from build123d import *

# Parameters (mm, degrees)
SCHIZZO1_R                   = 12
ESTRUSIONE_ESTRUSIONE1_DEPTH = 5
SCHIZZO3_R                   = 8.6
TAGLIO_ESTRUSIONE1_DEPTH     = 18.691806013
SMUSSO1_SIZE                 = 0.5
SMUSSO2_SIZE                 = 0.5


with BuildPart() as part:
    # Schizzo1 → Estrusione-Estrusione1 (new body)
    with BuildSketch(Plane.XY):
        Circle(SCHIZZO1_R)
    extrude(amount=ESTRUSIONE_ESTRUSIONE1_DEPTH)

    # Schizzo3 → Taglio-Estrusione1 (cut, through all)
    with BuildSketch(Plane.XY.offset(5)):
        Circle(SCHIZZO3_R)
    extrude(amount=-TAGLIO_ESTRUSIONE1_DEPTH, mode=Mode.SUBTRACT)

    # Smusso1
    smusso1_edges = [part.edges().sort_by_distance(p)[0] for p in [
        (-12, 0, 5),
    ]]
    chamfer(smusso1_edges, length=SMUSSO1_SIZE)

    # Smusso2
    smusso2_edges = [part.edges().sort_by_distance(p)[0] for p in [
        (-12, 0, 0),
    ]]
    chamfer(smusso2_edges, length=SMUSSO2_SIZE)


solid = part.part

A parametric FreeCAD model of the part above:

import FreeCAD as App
import Part
import Sketcher
from FreeCAD import Vector


def edges_at(feature, points):
    """Names of the edges that pass closest to the given points."""
    edges = feature.Shape.Edges
    near = lambda p: min(range(len(edges)), key=lambda i: edges[i].distToShape(Part.Vertex(*p))[0])
    return sorted({f"Edge{near(p) + 1}" for p in points})

doc = App.newDocument("Part")
body = doc.addObject("PartDesign::Body", "Body")

# Sketch on XY plane
sketch1 = body.newObject("Sketcher::SketchObject", "Sketch")
sketch1.AttachmentSupport = (doc.getObject("XY_Plane"), [""])
sketch1.MapMode = "FlatFace"
sketch1.addGeometry(Part.Circle(Vector(0, 0, 0), Vector(0, 0, 1), 12), False)
sketch1.addConstraint(Sketcher.Constraint("Coincident", 0, 3, -1, 1))
sketch1.addConstraint(Sketcher.Constraint("Diameter", 0, 24.0))
pad1 = body.newObject("PartDesign::Pad", "Pad")
pad1.Profile = sketch1
pad1.Length = 5

# Sketch on XY plane
sketch2 = body.newObject("Sketcher::SketchObject", "Sketch001")
sketch2.AttachmentSupport = (doc.getObject("XY_Plane"), [""])
sketch2.MapMode = "FlatFace"
sketch2.AttachmentOffset = App.Placement(Vector(0, 0, 5), App.Rotation())
sketch2.addGeometry(Part.Circle(Vector(0, 0, 0), Vector(0, 0, 1), 9), False)
sketch2.addConstraint(Sketcher.Constraint("Coincident", 0, 3, -1, 1))
sketch2.addConstraint(Sketcher.Constraint("Diameter", 0, 17.2))
pocket1 = body.newObject("PartDesign::Pocket", "Pocket")
pocket1.Profile = sketch2
pocket1.Type = "ThroughAll"
doc.recompute()

chamfer = body.newObject("PartDesign::Chamfer", "Chamfer")
chamfer.Base = (pocket1, edges_at(pocket1, [(-12, 0, 5)]))
chamfer.Size = 0.5
doc.recompute()

chamfer2 = body.newObject("PartDesign::Chamfer", "Chamfer001")
chamfer2.Base = (chamfer, edges_at(chamfer, [(-12, 0, 0)]))
chamfer2.Size = 0.5

doc.recompute()
